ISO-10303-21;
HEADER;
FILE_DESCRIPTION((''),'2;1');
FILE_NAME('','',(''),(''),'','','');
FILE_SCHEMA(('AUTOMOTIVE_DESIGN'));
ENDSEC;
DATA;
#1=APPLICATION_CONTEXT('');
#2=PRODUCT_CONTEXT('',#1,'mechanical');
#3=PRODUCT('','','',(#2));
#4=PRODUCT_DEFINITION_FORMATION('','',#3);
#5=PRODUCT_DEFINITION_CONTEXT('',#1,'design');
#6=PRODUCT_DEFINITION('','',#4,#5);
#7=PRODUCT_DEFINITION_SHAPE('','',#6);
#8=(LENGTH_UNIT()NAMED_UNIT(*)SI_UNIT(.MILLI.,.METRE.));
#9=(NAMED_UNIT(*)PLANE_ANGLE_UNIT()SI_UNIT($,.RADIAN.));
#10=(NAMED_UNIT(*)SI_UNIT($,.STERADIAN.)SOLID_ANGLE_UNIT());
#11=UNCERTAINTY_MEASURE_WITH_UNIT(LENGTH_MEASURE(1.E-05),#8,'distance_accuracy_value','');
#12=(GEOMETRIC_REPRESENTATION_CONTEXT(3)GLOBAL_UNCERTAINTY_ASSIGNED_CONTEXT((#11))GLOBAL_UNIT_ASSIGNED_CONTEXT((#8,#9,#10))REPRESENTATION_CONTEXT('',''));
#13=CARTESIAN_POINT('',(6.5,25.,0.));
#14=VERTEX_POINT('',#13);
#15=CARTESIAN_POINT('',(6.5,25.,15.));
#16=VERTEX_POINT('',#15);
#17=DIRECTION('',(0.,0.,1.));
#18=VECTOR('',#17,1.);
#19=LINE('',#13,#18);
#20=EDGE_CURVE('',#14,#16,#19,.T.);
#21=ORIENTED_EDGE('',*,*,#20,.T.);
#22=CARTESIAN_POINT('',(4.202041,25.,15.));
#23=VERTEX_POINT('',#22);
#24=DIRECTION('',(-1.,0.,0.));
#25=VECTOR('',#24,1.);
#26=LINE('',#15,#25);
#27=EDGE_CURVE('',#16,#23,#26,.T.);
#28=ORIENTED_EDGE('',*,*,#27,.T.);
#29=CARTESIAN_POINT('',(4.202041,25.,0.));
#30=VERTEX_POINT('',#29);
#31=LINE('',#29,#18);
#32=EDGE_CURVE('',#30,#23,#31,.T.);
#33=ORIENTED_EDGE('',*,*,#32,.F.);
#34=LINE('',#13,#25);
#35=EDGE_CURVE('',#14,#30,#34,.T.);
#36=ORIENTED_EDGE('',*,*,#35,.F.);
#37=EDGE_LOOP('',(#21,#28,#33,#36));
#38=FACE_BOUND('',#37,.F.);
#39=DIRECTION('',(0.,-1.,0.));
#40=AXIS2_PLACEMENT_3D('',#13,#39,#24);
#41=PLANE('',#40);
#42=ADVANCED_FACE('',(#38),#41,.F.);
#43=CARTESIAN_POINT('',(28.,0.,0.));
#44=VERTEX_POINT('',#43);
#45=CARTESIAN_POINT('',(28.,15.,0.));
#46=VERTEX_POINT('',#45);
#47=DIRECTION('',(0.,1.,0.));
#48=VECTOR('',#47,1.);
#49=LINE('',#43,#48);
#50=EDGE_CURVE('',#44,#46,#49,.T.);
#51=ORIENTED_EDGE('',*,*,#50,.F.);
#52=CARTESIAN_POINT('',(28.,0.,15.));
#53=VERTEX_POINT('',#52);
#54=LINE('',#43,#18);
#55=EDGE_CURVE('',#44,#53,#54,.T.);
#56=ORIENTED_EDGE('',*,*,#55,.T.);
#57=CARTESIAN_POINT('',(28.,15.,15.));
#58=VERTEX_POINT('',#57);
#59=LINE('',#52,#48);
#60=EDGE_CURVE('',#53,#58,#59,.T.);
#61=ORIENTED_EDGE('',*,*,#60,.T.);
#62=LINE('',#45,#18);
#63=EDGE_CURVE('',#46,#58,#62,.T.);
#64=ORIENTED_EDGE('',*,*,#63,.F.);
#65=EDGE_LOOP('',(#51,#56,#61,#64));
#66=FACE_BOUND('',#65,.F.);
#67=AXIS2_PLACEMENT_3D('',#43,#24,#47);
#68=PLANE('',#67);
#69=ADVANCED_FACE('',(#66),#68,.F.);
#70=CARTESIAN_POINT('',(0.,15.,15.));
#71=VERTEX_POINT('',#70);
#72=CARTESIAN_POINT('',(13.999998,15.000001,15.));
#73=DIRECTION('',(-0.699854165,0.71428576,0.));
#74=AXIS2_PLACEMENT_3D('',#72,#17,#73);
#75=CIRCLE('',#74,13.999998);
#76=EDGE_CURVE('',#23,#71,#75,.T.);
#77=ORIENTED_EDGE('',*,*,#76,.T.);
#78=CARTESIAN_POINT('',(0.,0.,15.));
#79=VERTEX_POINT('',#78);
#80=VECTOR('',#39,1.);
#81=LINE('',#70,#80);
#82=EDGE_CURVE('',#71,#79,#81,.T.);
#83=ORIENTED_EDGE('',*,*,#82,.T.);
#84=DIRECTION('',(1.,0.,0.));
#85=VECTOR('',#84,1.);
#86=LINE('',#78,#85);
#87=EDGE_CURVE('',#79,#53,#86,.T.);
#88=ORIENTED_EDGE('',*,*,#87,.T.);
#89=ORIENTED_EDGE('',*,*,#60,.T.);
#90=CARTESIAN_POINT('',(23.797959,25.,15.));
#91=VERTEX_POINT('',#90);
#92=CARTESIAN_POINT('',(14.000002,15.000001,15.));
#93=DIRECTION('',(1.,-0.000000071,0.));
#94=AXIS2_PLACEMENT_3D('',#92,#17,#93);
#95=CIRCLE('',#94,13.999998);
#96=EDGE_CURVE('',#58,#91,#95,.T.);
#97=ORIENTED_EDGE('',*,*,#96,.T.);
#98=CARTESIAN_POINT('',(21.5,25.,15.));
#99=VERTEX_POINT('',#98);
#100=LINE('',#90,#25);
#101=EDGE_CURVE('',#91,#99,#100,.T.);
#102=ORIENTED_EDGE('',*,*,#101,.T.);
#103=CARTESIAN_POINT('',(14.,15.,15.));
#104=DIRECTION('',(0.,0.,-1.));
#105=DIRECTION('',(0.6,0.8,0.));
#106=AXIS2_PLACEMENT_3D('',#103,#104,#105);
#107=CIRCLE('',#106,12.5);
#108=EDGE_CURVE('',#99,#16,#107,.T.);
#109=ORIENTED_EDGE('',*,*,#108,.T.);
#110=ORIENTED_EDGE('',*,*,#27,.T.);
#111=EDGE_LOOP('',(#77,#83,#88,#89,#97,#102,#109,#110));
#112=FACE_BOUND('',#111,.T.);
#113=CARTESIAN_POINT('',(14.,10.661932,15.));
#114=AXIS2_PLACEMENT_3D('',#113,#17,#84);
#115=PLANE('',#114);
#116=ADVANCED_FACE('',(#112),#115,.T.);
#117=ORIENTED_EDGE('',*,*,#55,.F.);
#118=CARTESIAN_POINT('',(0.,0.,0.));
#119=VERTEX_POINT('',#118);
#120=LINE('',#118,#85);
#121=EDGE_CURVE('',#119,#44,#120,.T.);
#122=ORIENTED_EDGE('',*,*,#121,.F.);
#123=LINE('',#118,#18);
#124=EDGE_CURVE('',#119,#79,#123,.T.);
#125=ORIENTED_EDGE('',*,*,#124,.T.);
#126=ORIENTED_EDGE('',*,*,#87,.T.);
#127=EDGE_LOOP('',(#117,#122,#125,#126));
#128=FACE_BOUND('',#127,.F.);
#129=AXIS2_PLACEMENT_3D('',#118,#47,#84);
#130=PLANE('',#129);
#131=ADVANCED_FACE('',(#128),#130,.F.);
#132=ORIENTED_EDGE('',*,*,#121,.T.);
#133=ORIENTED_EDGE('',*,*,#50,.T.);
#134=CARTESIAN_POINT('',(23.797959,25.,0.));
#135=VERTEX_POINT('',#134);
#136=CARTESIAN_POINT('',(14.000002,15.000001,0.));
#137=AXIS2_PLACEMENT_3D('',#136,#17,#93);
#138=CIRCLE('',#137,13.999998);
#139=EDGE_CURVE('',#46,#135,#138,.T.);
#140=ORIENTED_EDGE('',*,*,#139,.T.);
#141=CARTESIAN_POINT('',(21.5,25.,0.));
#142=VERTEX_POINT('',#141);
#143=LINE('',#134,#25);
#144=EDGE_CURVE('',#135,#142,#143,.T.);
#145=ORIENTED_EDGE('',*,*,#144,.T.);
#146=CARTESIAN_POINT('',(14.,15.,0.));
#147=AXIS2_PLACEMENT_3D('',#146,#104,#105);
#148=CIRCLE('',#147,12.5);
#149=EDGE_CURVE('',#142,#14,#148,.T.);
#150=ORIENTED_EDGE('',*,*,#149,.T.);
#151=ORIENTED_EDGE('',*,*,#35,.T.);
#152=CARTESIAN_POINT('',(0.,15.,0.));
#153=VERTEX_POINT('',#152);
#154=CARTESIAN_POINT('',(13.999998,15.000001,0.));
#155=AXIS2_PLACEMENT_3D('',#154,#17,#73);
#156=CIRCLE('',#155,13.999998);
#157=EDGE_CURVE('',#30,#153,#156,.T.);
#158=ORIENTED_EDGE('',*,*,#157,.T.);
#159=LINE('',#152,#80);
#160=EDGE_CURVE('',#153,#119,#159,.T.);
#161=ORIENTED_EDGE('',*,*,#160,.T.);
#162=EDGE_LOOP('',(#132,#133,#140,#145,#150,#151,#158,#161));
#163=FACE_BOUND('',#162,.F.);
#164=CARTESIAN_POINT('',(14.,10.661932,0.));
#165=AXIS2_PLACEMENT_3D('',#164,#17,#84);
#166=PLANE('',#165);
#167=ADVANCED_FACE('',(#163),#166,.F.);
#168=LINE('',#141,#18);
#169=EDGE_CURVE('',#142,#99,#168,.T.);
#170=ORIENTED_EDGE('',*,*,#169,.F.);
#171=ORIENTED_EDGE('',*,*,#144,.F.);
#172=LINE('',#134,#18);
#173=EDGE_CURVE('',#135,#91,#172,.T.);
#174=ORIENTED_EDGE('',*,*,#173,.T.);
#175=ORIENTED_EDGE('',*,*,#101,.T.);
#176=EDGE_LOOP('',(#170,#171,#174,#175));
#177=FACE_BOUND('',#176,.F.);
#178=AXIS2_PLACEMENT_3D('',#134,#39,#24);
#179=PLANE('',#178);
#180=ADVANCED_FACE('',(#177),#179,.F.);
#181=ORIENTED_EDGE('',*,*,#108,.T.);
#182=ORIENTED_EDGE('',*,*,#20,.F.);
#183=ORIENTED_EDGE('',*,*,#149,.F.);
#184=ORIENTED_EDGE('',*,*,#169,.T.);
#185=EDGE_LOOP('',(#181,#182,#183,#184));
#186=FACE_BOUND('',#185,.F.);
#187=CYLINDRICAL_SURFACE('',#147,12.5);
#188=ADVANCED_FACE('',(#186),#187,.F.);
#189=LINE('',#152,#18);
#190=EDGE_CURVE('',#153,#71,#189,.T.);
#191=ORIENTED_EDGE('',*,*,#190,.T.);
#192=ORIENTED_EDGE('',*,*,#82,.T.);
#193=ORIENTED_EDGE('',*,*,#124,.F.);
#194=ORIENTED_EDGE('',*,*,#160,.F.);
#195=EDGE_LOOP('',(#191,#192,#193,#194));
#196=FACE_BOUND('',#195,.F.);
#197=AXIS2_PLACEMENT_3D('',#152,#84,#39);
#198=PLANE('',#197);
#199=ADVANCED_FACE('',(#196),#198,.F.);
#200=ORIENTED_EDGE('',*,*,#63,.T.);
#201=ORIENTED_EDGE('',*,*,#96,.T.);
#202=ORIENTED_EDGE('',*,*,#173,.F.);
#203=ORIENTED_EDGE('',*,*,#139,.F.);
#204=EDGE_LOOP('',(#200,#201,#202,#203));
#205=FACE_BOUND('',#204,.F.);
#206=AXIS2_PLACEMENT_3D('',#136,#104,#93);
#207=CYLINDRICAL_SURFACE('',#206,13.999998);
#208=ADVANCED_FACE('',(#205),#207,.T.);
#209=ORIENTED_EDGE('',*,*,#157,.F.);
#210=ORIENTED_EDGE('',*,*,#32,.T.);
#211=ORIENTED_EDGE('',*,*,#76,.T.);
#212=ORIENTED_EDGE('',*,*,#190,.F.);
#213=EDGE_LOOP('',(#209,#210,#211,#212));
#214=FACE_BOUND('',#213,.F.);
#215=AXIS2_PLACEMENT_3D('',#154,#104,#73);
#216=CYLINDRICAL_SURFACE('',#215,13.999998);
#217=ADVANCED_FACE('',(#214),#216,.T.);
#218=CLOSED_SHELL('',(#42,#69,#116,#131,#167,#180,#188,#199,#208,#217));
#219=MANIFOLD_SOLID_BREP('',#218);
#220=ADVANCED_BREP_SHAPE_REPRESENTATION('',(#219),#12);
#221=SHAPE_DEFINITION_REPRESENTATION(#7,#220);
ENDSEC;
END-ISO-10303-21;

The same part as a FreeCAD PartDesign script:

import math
import FreeCAD as App
import Part
import Sketcher

doc = App.newDocument("Part")
body = doc.addObject("PartDesign::Body", "Body")

sketch1 = doc.addObject("Sketcher::SketchObject", "Sketch")
body.addObject(sketch1)
sketch1.AttachmentSupport = (doc.XY_Plane, [""])
sketch1.MapMode = "FlatFace"
sketch1.addGeometry([
    Part.ArcOfCircle(Part.Circle(App.Vector(14, 15, 0), App.Vector(0, 0, 1), 12.5), math.radians(127), math.radians(413)),
    Part.LineSegment(App.Vector(6.5, 25, 0), App.Vector(4.2, 25, 0)),
    Part.ArcOfCircle(Part.Circle(App.Vector(14, 15, 0), App.Vector(0, 0, 1), 14), math.radians(134), math.radians(180)),
    Part.LineSegment(App.Vector(0, 15, 0), App.Vector(0, 0, 0)),
    Part.LineSegment(App.Vector(0, 0, 0), App.Vector(28, 0, 0)),
    Part.LineSegment(App.Vector(28, 0, 0), App.Vector(28, 15, 0)),
    Part.ArcOfCircle(Part.Circle(App.Vector(14, 15, 0), App.Vector(0, 0, 1), 14), math.radians(0), math.radians(46)),
    Part.LineSegment(App.Vector(23.8, 25, 0), App.Vector(21.5, 25, 0)),
], False)
sketch1.addConstraint([
    Sketcher.Constraint("Coincident", 0, 1, 1, 1),
    Sketcher.Constraint("Coincident", 1, 2, 2, 1),
    Sketcher.Constraint("Tangent", 2, 2, 3, 1),
    Sketcher.Constraint("Coincident", 3, 2, 4, 1),
    Sketcher.Constraint("Coincident", 4, 2, 5, 1),
    Sketcher.Constraint("Tangent", 5, 2, 6, 1),
    Sketcher.Constraint("Coincident", 6, 2, 7, 1),
    Sketcher.Constraint("Coincident", 7, 2, 0, 2),
    Sketcher.Constraint("Horizontal", 1),
    Sketcher.Constraint("Vertical", 3),
    Sketcher.Constraint("Horizontal", 4),
    Sketcher.Constraint("Vertical", 5),
    Sketcher.Constraint("Horizontal", 7),
    Sketcher.Constraint("Coincident", 3, 2, -1, 1),
    Sketcher.Constraint("Coincident", 2, 3, 0, 3),
    Sketcher.Constraint("Coincident", 6, 3, 0, 3),
    Sketcher.Constraint("Equal", 2, 6),
    Sketcher.Constraint("Horizontal", 1, 2, 6, 2),
    Sketcher.Constraint("Radius", 0, 12.5),
    Sketcher.Constraint("DistanceX", 4, 1, 4, 2, 28.0),
    Sketcher.Constraint("DistanceY", 3, 2, 3, 1, 15.0),
    Sketcher.Constraint("DistanceY", -1, 1, 0, 1, 25.0),
])
pad1 = doc.addObject("PartDesign::Pad", "Pad")
body.addObject(pad1)
pad1.Profile = sketch1
pad1.Length = 15

doc.recompute()
